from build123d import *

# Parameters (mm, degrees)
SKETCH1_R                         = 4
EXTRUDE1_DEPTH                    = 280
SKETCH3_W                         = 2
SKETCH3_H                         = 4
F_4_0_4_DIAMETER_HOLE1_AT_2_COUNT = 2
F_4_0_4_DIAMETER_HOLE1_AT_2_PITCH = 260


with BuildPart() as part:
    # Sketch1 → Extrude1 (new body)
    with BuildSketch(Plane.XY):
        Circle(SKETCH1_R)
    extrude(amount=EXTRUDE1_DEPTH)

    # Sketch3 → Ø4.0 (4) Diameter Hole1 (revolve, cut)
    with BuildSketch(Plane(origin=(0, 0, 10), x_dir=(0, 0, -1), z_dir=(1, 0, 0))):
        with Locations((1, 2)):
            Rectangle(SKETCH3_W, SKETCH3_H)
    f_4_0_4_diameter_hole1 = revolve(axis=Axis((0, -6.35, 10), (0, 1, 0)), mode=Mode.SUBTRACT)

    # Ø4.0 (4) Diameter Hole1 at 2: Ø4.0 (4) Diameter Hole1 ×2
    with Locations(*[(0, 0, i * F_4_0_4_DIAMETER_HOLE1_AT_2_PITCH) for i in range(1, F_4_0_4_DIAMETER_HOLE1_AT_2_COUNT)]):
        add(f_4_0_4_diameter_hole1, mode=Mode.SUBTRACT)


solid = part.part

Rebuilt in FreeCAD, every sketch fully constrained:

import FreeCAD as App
import Part
import Sketcher
from FreeCAD import Vector
Q = App.Units.Quantity


def add_polygon(sketch, points):
    """Adds a closed chain of lines whose ends are joined by coincident constraints."""
    first, n = sketch.GeometryCount, len(points)
    for a, b in zip(points, points[1:] + points[:1]):
        sketch.addGeometry(Part.LineSegment(App.Vector(*a, 0), App.Vector(*b, 0)), False)
    for i in range(n):
        sketch.addConstraint(Sketcher.Constraint("Coincident", first + i, 2, first + (i + 1) % n, 1))

doc = App.newDocument("Part")
params = doc.addObject("Spreadsheet::Sheet", "Params")
for row, (alias, value) in enumerate([
    ("sketch1_diameter", "8 mm"),
    ("pad1_length", "280 mm"),
    ("sketch2_width", "4 mm"),
    ("sketch2_height", "2 mm"),
    ("groove_angle", "360 deg"),
    ("linearpattern_pitch", "260 mm"),
], start=1):
    params.set(f"A{row}", alias)
    params.set(f"B{row}", "=" + value)
    params.setAlias(f"B{row}", alias)

body = doc.addObject("PartDesign::Body", "Body")

sketch1 = body.newObject("Sketcher::SketchObject", "Sketch")
sketch1.AttachmentSupport = (doc.getObject("XY_Plane"), [""])
sketch1.MapMode = "FlatFace"
sketch1.addGeometry(Part.Circle(Vector(0, 0, 0), Vector(0, 0, 1), 4), False)
sketch1.addConstraint([
    Sketcher.Constraint("Coincident", 0, 3, -1, 1),
    Sketcher.Constraint("Diameter", 0, Q("8 mm")),
])
sketch1.setExpression("Constraints[1]", "Params.sketch1_diameter")
pad1 = body.newObject("PartDesign::Pad", "Pad")
pad1.Profile = sketch1
pad1.setExpression("Length", "Params.pad1_length")

sketch2 = body.newObject("Sketcher::SketchObject", "Sketch001")
sketch2.AttachmentSupport = (doc.getObject("YZ_Plane"), [""])
sketch2.MapMode = "FlatFace"
add_polygon(sketch2, [(4, 10), (0, 10), (0, 8), (4, 8)])
sketch2.addGeometry(Part.LineSegment(Vector(0, 10, 0), Vector(4, 10, 0)), True)
sketch2.addConstraint([
    Sketcher.Constraint("Horizontal", 0),
    Sketcher.Constraint("Vertical", 1),
    Sketcher.Constraint("Horizontal", 2),
    Sketcher.Constraint("Vertical", 3),
    Sketcher.Constraint("Horizontal", 4),
    Sketcher.Constraint("Coincident", 4, 1, 0, 2),
    Sketcher.Constraint("PointOnObject", 0, 2, -2),
    Sketcher.Constraint("Vertical", 2, 2, 4, 2),
    Sketcher.Constraint("DistanceX", 0, 2, 0, 1, Q("4 mm")),
    Sketcher.Constraint("DistanceY", 1, 2, 1, 1, Q("2 mm")),
    Sketcher.Constraint("DistanceY", -1, 1, 0, 2, Q("10 mm")),
])
sketch2.setExpression("Constraints[12]", "Params.sketch2_width")
sketch2.setExpression("Constraints[13]", "Params.sketch2_height")
groove = body.newObject("PartDesign::Groove", "Groove")
groove.Profile = sketch2
groove.ReferenceAxis = (sketch2, ["Axis0"])
groove.setExpression("Angle", "Params.groove_angle")
doc.recompute()

linearpattern = body.newObject("PartDesign::LinearPattern", "LinearPattern")
linearpattern.Originals = [groove]
linearpattern.Direction = (doc.getObject("Z_Axis"), [""])
linearpattern.Mode = "offset"
linearpattern.setExpression("Offset", "Params.linearpattern_pitch")
linearpattern.Occurrences = 2
body.Tip = linearpattern

doc.recompute()
